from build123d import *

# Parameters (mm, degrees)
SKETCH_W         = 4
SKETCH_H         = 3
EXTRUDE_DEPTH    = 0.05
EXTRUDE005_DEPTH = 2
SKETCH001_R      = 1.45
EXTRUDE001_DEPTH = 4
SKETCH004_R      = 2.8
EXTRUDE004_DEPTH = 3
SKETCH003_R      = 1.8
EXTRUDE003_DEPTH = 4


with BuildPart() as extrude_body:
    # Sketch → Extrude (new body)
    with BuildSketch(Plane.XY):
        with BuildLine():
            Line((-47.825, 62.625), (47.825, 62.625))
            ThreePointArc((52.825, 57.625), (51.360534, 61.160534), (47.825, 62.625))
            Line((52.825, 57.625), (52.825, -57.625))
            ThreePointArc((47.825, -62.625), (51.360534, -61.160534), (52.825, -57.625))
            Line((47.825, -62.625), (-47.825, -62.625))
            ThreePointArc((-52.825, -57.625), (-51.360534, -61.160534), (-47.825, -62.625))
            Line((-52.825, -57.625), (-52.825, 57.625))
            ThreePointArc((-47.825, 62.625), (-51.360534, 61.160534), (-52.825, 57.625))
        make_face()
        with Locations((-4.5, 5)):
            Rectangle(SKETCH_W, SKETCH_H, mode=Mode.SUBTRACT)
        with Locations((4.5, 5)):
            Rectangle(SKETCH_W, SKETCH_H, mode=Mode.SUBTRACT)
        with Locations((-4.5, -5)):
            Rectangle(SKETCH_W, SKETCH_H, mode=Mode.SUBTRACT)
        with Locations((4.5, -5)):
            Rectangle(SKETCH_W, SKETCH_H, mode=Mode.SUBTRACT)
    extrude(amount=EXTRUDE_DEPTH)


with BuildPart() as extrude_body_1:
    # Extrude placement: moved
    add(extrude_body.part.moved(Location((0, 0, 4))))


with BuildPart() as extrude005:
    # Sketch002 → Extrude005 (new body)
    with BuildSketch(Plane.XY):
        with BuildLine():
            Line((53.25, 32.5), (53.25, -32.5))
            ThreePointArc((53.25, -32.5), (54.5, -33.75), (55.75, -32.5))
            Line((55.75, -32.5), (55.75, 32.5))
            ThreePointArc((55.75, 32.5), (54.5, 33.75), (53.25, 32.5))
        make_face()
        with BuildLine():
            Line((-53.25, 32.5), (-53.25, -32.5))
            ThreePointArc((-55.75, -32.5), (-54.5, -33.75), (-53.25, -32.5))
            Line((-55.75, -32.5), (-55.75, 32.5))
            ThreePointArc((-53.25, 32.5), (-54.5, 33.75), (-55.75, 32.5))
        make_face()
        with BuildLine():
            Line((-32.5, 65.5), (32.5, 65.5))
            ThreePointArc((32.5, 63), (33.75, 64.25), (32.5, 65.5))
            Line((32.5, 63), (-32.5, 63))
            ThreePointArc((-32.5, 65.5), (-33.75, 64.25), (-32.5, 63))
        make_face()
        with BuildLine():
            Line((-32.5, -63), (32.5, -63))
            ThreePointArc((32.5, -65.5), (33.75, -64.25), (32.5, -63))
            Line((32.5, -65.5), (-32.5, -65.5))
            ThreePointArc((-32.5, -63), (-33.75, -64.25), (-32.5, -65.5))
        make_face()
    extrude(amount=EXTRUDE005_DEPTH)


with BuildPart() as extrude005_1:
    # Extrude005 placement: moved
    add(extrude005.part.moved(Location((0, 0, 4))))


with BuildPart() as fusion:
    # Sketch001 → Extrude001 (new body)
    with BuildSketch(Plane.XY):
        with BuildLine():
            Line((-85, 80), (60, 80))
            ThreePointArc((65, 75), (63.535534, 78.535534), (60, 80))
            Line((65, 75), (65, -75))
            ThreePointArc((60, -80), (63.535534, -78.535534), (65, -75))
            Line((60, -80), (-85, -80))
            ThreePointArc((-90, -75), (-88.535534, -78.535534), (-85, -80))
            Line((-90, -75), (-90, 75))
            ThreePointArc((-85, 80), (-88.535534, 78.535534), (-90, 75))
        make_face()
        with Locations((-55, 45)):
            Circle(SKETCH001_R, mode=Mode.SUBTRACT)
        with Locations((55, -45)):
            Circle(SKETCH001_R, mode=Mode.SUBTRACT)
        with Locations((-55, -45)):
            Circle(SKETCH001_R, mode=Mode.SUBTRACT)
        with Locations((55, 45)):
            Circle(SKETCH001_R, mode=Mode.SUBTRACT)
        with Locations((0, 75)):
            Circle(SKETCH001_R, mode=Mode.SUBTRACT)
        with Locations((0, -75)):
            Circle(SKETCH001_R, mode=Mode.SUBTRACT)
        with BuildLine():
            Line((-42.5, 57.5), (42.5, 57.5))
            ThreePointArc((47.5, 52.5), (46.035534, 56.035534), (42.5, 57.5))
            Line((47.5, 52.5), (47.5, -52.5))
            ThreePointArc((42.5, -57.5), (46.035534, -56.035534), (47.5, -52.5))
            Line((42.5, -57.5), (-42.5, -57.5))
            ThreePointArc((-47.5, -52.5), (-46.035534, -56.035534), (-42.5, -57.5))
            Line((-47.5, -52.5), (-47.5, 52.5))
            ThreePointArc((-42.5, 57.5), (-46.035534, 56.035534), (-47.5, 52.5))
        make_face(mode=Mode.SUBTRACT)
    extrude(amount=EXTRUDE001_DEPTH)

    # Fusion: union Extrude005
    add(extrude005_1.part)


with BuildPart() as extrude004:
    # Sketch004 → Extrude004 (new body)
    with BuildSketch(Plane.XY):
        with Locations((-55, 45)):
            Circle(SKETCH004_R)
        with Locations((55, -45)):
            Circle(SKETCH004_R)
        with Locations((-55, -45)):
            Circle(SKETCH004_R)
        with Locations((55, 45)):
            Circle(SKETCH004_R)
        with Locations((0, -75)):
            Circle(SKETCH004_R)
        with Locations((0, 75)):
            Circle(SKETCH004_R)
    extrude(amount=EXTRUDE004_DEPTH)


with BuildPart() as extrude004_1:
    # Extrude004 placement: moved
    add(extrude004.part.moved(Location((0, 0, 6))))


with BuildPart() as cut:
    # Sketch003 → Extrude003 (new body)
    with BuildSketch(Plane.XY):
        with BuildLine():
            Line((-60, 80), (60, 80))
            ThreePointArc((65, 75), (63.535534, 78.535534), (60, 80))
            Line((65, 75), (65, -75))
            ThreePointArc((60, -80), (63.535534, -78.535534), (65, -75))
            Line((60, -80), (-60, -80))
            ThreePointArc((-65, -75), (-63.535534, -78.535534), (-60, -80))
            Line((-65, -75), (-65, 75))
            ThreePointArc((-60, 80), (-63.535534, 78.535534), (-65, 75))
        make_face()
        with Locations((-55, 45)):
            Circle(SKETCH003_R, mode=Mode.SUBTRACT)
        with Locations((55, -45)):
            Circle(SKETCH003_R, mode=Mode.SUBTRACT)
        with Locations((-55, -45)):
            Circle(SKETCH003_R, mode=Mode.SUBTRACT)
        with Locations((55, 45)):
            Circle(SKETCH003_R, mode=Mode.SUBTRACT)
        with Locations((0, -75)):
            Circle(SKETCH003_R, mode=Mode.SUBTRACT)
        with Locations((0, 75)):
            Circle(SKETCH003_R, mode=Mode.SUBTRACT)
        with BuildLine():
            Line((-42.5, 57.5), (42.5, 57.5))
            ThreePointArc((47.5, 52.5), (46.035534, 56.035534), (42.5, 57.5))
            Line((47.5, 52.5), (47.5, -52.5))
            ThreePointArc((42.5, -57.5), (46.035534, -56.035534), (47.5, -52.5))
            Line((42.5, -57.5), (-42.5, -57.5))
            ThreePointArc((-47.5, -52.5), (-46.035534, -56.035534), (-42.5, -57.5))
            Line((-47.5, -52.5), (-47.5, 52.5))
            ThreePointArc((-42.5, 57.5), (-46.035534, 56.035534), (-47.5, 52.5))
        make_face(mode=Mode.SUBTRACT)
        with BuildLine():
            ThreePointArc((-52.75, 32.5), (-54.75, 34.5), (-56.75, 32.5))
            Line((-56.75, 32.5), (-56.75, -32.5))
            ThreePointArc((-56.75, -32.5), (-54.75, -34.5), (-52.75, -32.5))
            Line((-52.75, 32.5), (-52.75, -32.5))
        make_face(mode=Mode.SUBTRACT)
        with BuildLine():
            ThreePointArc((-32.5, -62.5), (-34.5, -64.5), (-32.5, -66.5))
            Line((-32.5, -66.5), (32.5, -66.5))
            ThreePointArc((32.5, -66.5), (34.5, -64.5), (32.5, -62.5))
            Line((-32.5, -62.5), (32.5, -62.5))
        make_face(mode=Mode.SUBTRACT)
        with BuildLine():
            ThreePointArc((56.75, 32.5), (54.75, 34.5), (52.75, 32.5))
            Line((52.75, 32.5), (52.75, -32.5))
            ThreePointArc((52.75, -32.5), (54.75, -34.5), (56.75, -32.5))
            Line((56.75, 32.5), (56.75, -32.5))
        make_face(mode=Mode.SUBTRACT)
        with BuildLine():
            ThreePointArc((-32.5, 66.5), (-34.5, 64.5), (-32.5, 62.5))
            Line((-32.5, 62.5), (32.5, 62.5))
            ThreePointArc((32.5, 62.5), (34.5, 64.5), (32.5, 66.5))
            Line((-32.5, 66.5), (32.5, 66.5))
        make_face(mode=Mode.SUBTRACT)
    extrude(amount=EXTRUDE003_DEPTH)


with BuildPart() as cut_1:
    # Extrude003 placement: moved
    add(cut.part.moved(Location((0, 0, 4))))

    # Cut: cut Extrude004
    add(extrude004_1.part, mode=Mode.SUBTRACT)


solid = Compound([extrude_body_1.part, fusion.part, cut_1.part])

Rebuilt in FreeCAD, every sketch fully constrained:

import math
import FreeCAD as App
import Part
import Sketcher

V = App.Vector
Q = App.Units.Quantity


def add_polygon(sketch, points):
    """Adds a closed chain of lines whose ends are joined by coincident constraints."""
    first, n = sketch.GeometryCount, len(points)
    for a, b in zip(points, points[1:] + points[:1]):
        sketch.addGeometry(Part.LineSegment(App.Vector(*a, 0), App.Vector(*b, 0)), False)
    for i in range(n):
        sketch.addConstraint(Sketcher.Constraint("Coincident", first + i, 2, first + (i + 1) % n, 1))

doc = App.newDocument("Part")
body = doc.addObject("PartDesign::Body", "Body")

# Sketch on XY plane
sketch1 = body.newObject("Sketcher::SketchObject", "Sketch")
sketch1.AttachmentSupport = (doc.getObject("XY_Plane"), [""])
sketch1.MapMode = "FlatFace"
sketch1.addGeometry(Part.LineSegment(V(47.8, 62.6, 0), V(-47.8, 62.6, 0)), False)  # 0
sketch1.addGeometry(Part.ArcOfCircle(Part.Circle(V(-47.8, 57.6, 0), V(0, 0, 1), 5), math.radians(90), math.radians(180)), False)  # 1
sketch1.addGeometry(Part.LineSegment(V(-52.8, 57.6, 0), V(-52.8, -57.6, 0)), False)  # 2
sketch1.addGeometry(Part.ArcOfCircle(Part.Circle(V(-47.8, -57.6, 0), V(0, 0, 1), 5), math.radians(180), math.radians(270)), False)  # 3
sketch1.addGeometry(Part.LineSegment(V(-47.8, -62.6, 0), V(47.8, -62.6, 0)), False)  # 4
sketch1.addGeometry(Part.ArcOfCircle(Part.Circle(V(47.8, -57.6, 0), V(0, 0, 1), 5), math.radians(-90), math.radians(0)), False)  # 5
sketch1.addGeometry(Part.LineSegment(V(52.8, -57.6, 0), V(52.8, 57.6, 0)), False)  # 6
sketch1.addGeometry(Part.ArcOfCircle(Part.Circle(V(47.8, 57.6, 0), V(0, 0, 1), 5), math.radians(0), math.radians(90)), False)  # 7
add_polygon(sketch1, [(2.5, -6.5), (2.5, -3.5), (6.5, -3.5), (6.5, -6.5)])  # lines 8-11
add_polygon(sketch1, [(-6.5, -6.5), (-6.5, -3.5), (-2.5, -3.5), (-2.5, -6.5)])  # lines 12-15
add_polygon(sketch1, [(2.5, 3.5), (2.5, 6.5), (6.5, 6.5), (6.5, 3.5)])  # lines 16-19
add_polygon(sketch1, [(-6.5, 3.5), (-6.5, 6.5), (-2.5, 6.5), (-2.5, 3.5)])  # lines 20-23
sketch1.addConstraint([
    Sketcher.Constraint("Tangent", 0, 2, 1, 1),
    Sketcher.Constraint("Tangent", 1, 2, 2, 1),
    Sketcher.Constraint("Tangent", 2, 2, 3, 1),
    Sketcher.Constraint("Tangent", 3, 2, 4, 1),
    Sketcher.Constraint("Tangent", 4, 2, 5, 1),
    Sketcher.Constraint("Tangent", 5, 2, 6, 1),
    Sketcher.Constraint("Tangent", 6, 2, 7, 1),
    Sketcher.Constraint("Tangent", 7, 2, 0, 1),
    Sketcher.Constraint("Horizontal", 0),
    Sketcher.Constraint("Vertical", 2),
    Sketcher.Constraint("Horizontal", 4),
    Sketcher.Constraint("Vertical", 6),
    Sketcher.Constraint("Vertical", 8),
    Sketcher.Constraint("Horizontal", 9),
    Sketcher.Constraint("Vertical", 10),
    Sketcher.Constraint("Horizontal", 11),
    Sketcher.Constraint("Vertical", 12),
    Sketcher.Constraint("Horizontal", 13),
    Sketcher.Constraint("Vertical", 14),
    Sketcher.Constraint("Horizontal", 15),
    Sketcher.Constraint("Vertical", 16),
    Sketcher.Constraint("Horizontal", 17),
    Sketcher.Constraint("Vertical", 18),
    Sketcher.Constraint("Horizontal", 19),
    Sketcher.Constraint("Vertical", 20),
    Sketcher.Constraint("Horizontal", 21),
    Sketcher.Constraint("Vertical", 22),
    Sketcher.Constraint("Horizontal", 23),
    Sketcher.Constraint("Equal", 1, 3),
    Sketcher.Constraint("Equal", 3, 5),
    Sketcher.Constraint("Equal", 5, 7),
    Sketcher.Constraint("Symmetric", 1, 3, 5, 3, -1, 1),
    Sketcher.Constraint("Symmetric", 14, 2, 16, 2, -1, 1),
    Sketcher.Constraint("Symmetric", 12, 2, 18, 2, -1, 1),
    Sketcher.Constraint("Symmetric", 10, 2, 20, 2, -1, 1),
    Sketcher.Constraint("Symmetric", 8, 2, 22, 2, -1, 1),
    Sketcher.Constraint("Symmetric", 9, 2, 12, 2, -2),
    Sketcher.Constraint("Symmetric", 11, 2, 14, 2, -2),
    Sketcher.Constraint("Radius", 1, Q("5 mm")),
    Sketcher.Constraint("DistanceX", 9, 1, 9, 2, Q("4 mm")),
    Sketcher.Constraint("DistanceY", 8, 1, 8, 2, Q("3 mm")),
    Sketcher.Constraint("DistanceX", 12, 2, 8, 2, Q("9 mm")),
    Sketcher.Constraint("DistanceY", 8, 2, 16, 2, Q("10 mm")),
    Sketcher.Constraint("DistanceX", 0, 2, 0, 1, Q("95.65 mm")),
    Sketcher.Constraint("DistanceY", 2, 2, 2, 1, Q("115.25 mm")),
])
pad1 = body.newObject("PartDesign::Pad", "Pad")
pad1.Profile = sketch1
pad1.Length = 0.05
body2 = doc.addObject("PartDesign::Body", "Body001")
doc.recompute()

body.Placement = App.Placement(V(0, 0, 4), App.Rotation(V(0, 0, 1), 0))
boolean = body2.newObject("PartDesign::Boolean", "Boolean")
boolean.Type = "Fuse"
boolean.addObjects([body])
body3 = doc.addObject("PartDesign::Body", "Body002")
body3.AllowCompound = True

# Sketch on XY plane
sketch2 = body3.newObject("Sketcher::SketchObject", "Sketch001")
sketch2.AttachmentSupport = (doc.getObject("XY_Plane002"), [""])
sketch2.MapMode = "FlatFace"
sketch2.addGeometry([
    Part.LineSegment(V(53.2, 32.5, 0), V(53.2, -32.5, 0)),  # 0
    Part.ArcOfCircle(Part.Circle(V(54.5, -32.5, 0), V(0, 0, 1), 1.2), math.radians(180), math.radians(360)),  # 1
    Part.LineSegment(V(55.8, -32.5, 0), V(55.8, 32.5, 0)),  # 2
    Part.ArcOfCircle(Part.Circle(V(54.5, 32.5, 0), V(0, 0, 1), 1.2), math.radians(0), math.radians(180)),  # 3
    Part.LineSegment(V(-53.2, -32.5, 0), V(-53.2, 32.5, 0)),  # 4
    Part.ArcOfCircle(Part.Circle(V(-54.5, 32.5, 0), V(0, 0, 1), 1.2), math.radians(0), math.radians(180)),  # 5
    Part.LineSegment(V(-55.8, 32.5, 0), V(-55.8, -32.5, 0)),  # 6
    Part.ArcOfCircle(Part.Circle(V(-54.5, -32.5, 0), V(0, 0, 1), 1.2), math.radians(180), math.radians(360)),  # 7
    Part.LineSegment(V(32.5, 65.5, 0), V(-32.5, 65.5, 0)),  # 8
    Part.ArcOfCircle(Part.Circle(V(-32.5, 64.2, 0), V(0, 0, 1), 1.2), math.radians(90), math.radians(270)),  # 9
    Part.LineSegment(V(-32.5, 63, 0), V(32.5, 63, 0)),  # 10
    Part.ArcOfCircle(Part.Circle(V(32.5, 64.2, 0), V(0, 0, 1), 1.2), math.radians(-90), math.radians(90)),  # 11
    Part.LineSegment(V(32.5, -63, 0), V(-32.5, -63, 0)),  # 12
    Part.ArcOfCircle(Part.Circle(V(-32.5, -64.2, 0), V(0, 0, 1), 1.2), math.radians(90), math.radians(270)),  # 13
    Part.LineSegment(V(-32.5, -65.5, 0), V(32.5, -65.5, 0)),  # 14
    Part.ArcOfCircle(Part.Circle(V(32.5, -64.2, 0), V(0, 0, 1), 1.2), math.radians(-90), math.radians(90)),  # 15
], False)
sketch2.addConstraint([
    Sketcher.Constraint("Tangent", 0, 2, 1, 1),
    Sketcher.Constraint("Tangent", 1, 2, 2, 1),
    Sketcher.Constraint("Tangent", 2, 2, 3, 1),
    Sketcher.Constraint("Tangent", 3, 2, 0, 1),
    Sketcher.Constraint("Tangent", 4, 2, 5, 1),
    Sketcher.Constraint("Tangent", 5, 2, 6, 1),
    Sketcher.Constraint("Tangent", 6, 2, 7, 1),
    Sketcher.Constraint("Tangent", 7, 2, 4, 1),
    Sketcher.Constraint("Tangent", 8, 2, 9, 1),
    Sketcher.Constraint("Tangent", 9, 2, 10, 1),
    Sketcher.Constraint("Tangent", 10, 2, 11, 1),
    Sketcher.Constraint("Tangent", 11, 2, 8, 1),
    Sketcher.Constraint("Tangent", 12, 2, 13, 1),
    Sketcher.Constraint("Tangent", 13, 2, 14, 1),
    Sketcher.Constraint("Tangent", 14, 2, 15, 1),
    Sketcher.Constraint("Tangent", 15, 2, 12, 1),
    Sketcher.Constraint("Vertical", 0),
    Sketcher.Constraint("Vertical", 2),
    Sketcher.Constraint("Vertical", 4),
    Sketcher.Constraint("Vertical", 6),
    Sketcher.Constraint("Horizontal", 8),
    Sketcher.Constraint("Horizontal", 10),
    Sketcher.Constraint("Horizontal", 12),
    Sketcher.Constraint("Horizontal", 14),
    Sketcher.Constraint("Equal", 3, 5),
    Sketcher.Constraint("Equal", 7, 9),
    Sketcher.Constraint("Equal", 11, 13),
    Sketcher.Constraint("Symmetric", 1, 3, 5, 3, -1, 1),
    Sketcher.Constraint("Symmetric", 11, 3, 13, 3, -1, 1),
    Sketcher.Constraint("Horizontal", 3, 3, 5, 3),
    Sketcher.Constraint("Horizontal", 1, 3, 7, 3),
    Sketcher.Constraint("Vertical", 9, 3, 13, 3),
    Sketcher.Constraint("Vertical", 11, 3, 15, 3),
    Sketcher.Constraint("Equal", 14, 0),
    Sketcher.Constraint("DistanceX", 8, 2, 8, 1, Q("65 mm")),
    Sketcher.Constraint("Radius", 1, Q("1.25 mm")),
    Sketcher.Constraint("DistanceY", -1, 1, 9, 2, Q("63 mm")),
    Sketcher.Constraint("DistanceX", 5, 3, 3, 3, Q("109 mm")),
])
pad2 = body3.newObject("PartDesign::Pad", "Pad001")
pad2.Profile = sketch2
pad2.Length = 2
body4 = doc.addObject("PartDesign::Body", "Body003")
body4.AllowCompound = True
doc.recompute()

body3.Placement = App.Placement(V(0, 0, 4), App.Rotation(V(0, 0, 1), 0))
boolean2 = body4.newObject("PartDesign::Boolean", "Boolean001")
boolean2.Type = "Fuse"
boolean2.addObjects([body3])
body5 = doc.addObject("PartDesign::Body", "Body004")

# Sketch on XY plane
sketch3 = body5.newObject("Sketcher::SketchObject", "Sketch002")
sketch3.AttachmentSupport = (doc.getObject("XY_Plane004"), [""])
sketch3.MapMode = "FlatFace"
sketch3.addGeometry([
    Part.LineSegment(V(60, 80, 0), V(-85, 80, 0)),  # 0
    Part.ArcOfCircle(Part.Circle(V(-85, 75, 0), V(0, 0, 1), 5), math.radians(90), math.radians(180)),  # 1
    Part.LineSegment(V(-90, 75, 0), V(-90, -75, 0)),  # 2
    Part.ArcOfCircle(Part.Circle(V(-85, -75, 0), V(0, 0, 1), 5), math.radians(180), math.radians(270)),  # 3
    Part.LineSegment(V(-85, -80, 0), V(60, -80, 0)),  # 4
    Part.ArcOfCircle(Part.Circle(V(60, -75, 0), V(0, 0, 1), 5), math.radians(-90), math.radians(0)),  # 5
    Part.LineSegment(V(65, -75, 0), V(65, 75, 0)),  # 6
    Part.ArcOfCircle(Part.Circle(V(60, 75, 0), V(0, 0, 1), 5), math.radians(0), math.radians(90)),  # 7
    Part.Circle(V(55, -45, 0), V(0, 0, 1), 1.4),  # 8
    Part.Circle(V(0, -75, 0), V(0, 0, 1), 1.4),  # 9
    Part.Circle(V(-55, -45, 0), V(0, 0, 1), 1.4),  # 10
    Part.LineSegment(V(-42.5, 57.5, 0), V(42.5, 57.5, 0)),  # 11
    Part.ArcOfCircle(Part.Circle(V(42.5, 52.5, 0), V(0, 0, 1), 5), math.radians(0), math.radians(90)),  # 12
    Part.LineSegment(V(47.5, 52.5, 0), V(47.5, -52.5, 0)),  # 13
    Part.ArcOfCircle(Part.Circle(V(42.5, -52.5, 0), V(0, 0, 1), 5), math.radians(-90), math.radians(0)),  # 14
    Part.LineSegment(V(42.5, -57.5, 0), V(-42.5, -57.5, 0)),  # 15
    Part.ArcOfCircle(Part.Circle(V(-42.5, -52.5, 0), V(0, 0, 1), 5), math.radians(180), math.radians(270)),  # 16
    Part.LineSegment(V(-47.5, -52.5, 0), V(-47.5, 52.5, 0)),  # 17
    Part.ArcOfCircle(Part.Circle(V(-42.5, 52.5, 0), V(0, 0, 1), 5), math.radians(90), math.radians(180)),  # 18
    Part.Circle(V(55, 45, 0), V(0, 0, 1), 1.4),  # 19
    Part.Circle(V(0, 75, 0), V(0, 0, 1), 1.4),  # 20
    Part.Circle(V(-55, 45, 0), V(0, 0, 1), 1.4),  # 21
], False)
sketch3.addConstraint([
    Sketcher.Constraint("Tangent", 0, 2, 1, 1),
    Sketcher.Constraint("Tangent", 1, 2, 2, 1),
    Sketcher.Constraint("Tangent", 2, 2, 3, 1),
    Sketcher.Constraint("Tangent", 3, 2, 4, 1),
    Sketcher.Constraint("Tangent", 4, 2, 5, 1),
    Sketcher.Constraint("Tangent", 5, 2, 6, 1),
    Sketcher.Constraint("Tangent", 6, 2, 7, 1),
    Sketcher.Constraint("Tangent", 7, 2, 0, 1),
    Sketcher.Constraint("Tangent", 11, 2, 12, 2),
    Sketcher.Constraint("Tangent", 12, 1, 13, 1),
    Sketcher.Constraint("Tangent", 13, 2, 14, 2),
    Sketcher.Constraint("Tangent", 14, 1, 15, 1),
    Sketcher.Constraint("Tangent", 15, 2, 16, 2),
    Sketcher.Constraint("Tangent", 16, 1, 17, 1),
    Sketcher.Constraint("Tangent", 17, 2, 18, 2),
    Sketcher.Constraint("Tangent", 18, 1, 11, 1),
    Sketcher.Constraint("Horizontal", 0),
    Sketcher.Constraint("Vertical", 2),
    Sketcher.Constraint("Horizontal", 4),
    Sketcher.Constraint("Vertical", 6),
    Sketcher.Constraint("Horizontal", 11),
    Sketcher.Constraint("Vertical", 13),
    Sketcher.Constraint("Horizontal", 15),
    Sketcher.Constraint("Vertical", 17),
    Sketcher.Constraint("Equal", 1, 3),
    Sketcher.Constraint("Equal", 3, 5),
    Sketcher.Constraint("Equal", 5, 7),
    Sketcher.Constraint("Equal", 8, 9),
    Sketcher.Constraint("Equal", 9, 10),
    Sketcher.Constraint("Equal", 7, 12),
    Sketcher.Constraint("Equal", 12, 14),
    Sketcher.Constraint("Equal", 14, 16),
    Sketcher.Constraint("Equal", 16, 18),
    Sketcher.Constraint("Equal", 10, 19),
    Sketcher.Constraint("Equal", 19, 20),
    Sketcher.Constraint("Equal", 20, 21),
    Sketcher.Constraint("Symmetric", 12, 3, 16, 3, -1, 1),
    Sketcher.Constraint("Symmetric", 10, 3, 19, 3, -1, 1),
    Sketcher.Constraint("Symmetric", 9, 3, 20, 3, -1, 1),
    Sketcher.Constraint("Symmetric", 8, 3, 21, 3, -1, 1),
    Sketcher.Constraint("Symmetric", 8, 3, 10, 3, -2),
    Sketcher.Constraint("PointOnObject", 9, 3, -2),
    Sketcher.Constraint("Horizontal", 5, 3, 9, 3),
    Sketcher.Constraint("Horizontal", 7, 3, 20, 3),
    Sketcher.Constraint("Radius", 1, Q("5 mm")),
    Sketcher.Constraint("Diameter", 8, Q("2.9 mm")),
    Sketcher.Constraint("DistanceX", 0, 2, 0, 1, Q("145 mm")),
    Sketcher.Constraint("DistanceX", 11, 1, 11, 2, Q("85 mm")),
    Sketcher.Constraint("DistanceY", 2, 2, 2, 1, Q("150 mm")),
    Sketcher.Constraint("DistanceY", 13, 2, 13, 1, Q("105 mm")),
    Sketcher.Constraint("DistanceX", 1, 3, -1, 1, Q("85 mm")),
    Sketcher.Constraint("DistanceX", -1, 1, 8, 3, Q("55 mm")),
    Sketcher.Constraint("DistanceY", 8, 3, -1, 1, Q("45 mm")),
])
pad3 = body5.newObject("PartDesign::Pad", "Pad002")
pad3.Profile = sketch3
pad3.Length = 4
doc.recompute()

boolean3 = body5.newObject("PartDesign::Boolean", "Boolean002")
boolean3.Type = "Fuse"
boolean3.addObjects([body4])
body6 = doc.addObject("PartDesign::Body", "Body005")
body6.AllowCompound = True

# Sketch on XY plane
sketch4 = body6.newObject("Sketcher::SketchObject", "Sketch003")
sketch4.AttachmentSupport = (doc.getObject("XY_Plane005"), [""])
sketch4.MapMode = "FlatFace"
sketch4.addGeometry([
    Part.Circle(V(-55, 45, 0), V(0, 0, 1), 2.8),  # 0
    Part.Circle(V(55, -45, 0), V(0, 0, 1), 2.8),  # 1
    Part.Circle(V(-55, -45, 0), V(0, 0, 1), 2.8),  # 2
    Part.Circle(V(55, 45, 0), V(0, 0, 1), 2.8),  # 3
    Part.Circle(V(0, -75, 0), V(0, 0, 1), 2.8),  # 4
    Part.Circle(V(0, 75, 0), V(0, 0, 1), 2.8),  # 5
], False)
sketch4.addConstraint([
    Sketcher.Constraint("Equal", 0, 1),
    Sketcher.Constraint("Equal", 1, 2),
    Sketcher.Constraint("Equal", 2, 3),
    Sketcher.Constraint("Equal", 3, 4),
    Sketcher.Constraint("Equal", 4, 5),
    Sketcher.Constraint("Symmetric", 0, 3, 1, 3, -1, 1),
    Sketcher.Constraint("Symmetric", 2, 3, 3, 3, -1, 1),
    Sketcher.Constraint("Symmetric", 4, 3, 5, 3, -1, 1),
    Sketcher.Constraint("Symmetric", 1, 3, 2, 3, -2),
    Sketcher.Constraint("PointOnObject", 4, 3, -2),
    Sketcher.Constraint("Diameter", 0, Q("5.6 mm")),
    Sketcher.Constraint("DistanceX", 0, 3, -1, 1, Q("55 mm")),
    Sketcher.Constraint("DistanceY", -1, 1, 0, 3, Q("45 mm")),
    Sketcher.Constraint("DistanceY", 4, 3, -1, 1, Q("75 mm")),
])
pad4 = body6.newObject("PartDesign::Pad", "Pad003")
pad4.Profile = sketch4
pad4.Length = 3
body7 = doc.addObject("PartDesign::Body", "Body006")
body7.AllowCompound = True
doc.recompute()

body6.Placement = App.Placement(V(0, 0, 6), App.Rotation(V(0, 0, 1), 0))
boolean4 = body7.newObject("PartDesign::Boolean", "Boolean003")
boolean4.Type = "Fuse"
boolean4.addObjects([body6])
body8 = doc.addObject("PartDesign::Body", "Body007")

# Sketch on XY plane
sketch5 = body8.newObject("Sketcher::SketchObject", "Sketch004")
sketch5.AttachmentSupport = (doc.getObject("XY_Plane007"), [""])
sketch5.MapMode = "FlatFace"
sketch5.addGeometry([
    Part.LineSegment(V(60, 80, 0), V(-60, 80, 0)),  # 0
    Part.ArcOfCircle(Part.Circle(V(-60, 75, 0), V(0, 0, 1), 5), math.radians(90), math.radians(180)),  # 1
    Part.LineSegment(V(-65, 75, 0), V(-65, -75, 0)),  # 2
    Part.ArcOfCircle(Part.Circle(V(-60, -75, 0), V(0, 0, 1), 5), math.radians(180), math.radians(270)),  # 3
    Part.LineSegment(V(-60, -80, 0), V(60, -80, 0)),  # 4
    Part.ArcOfCircle(Part.Circle(V(60, -75, 0), V(0, 0, 1), 5), math.radians(-90), math.radians(0)),  # 5
    Part.LineSegment(V(65, -75, 0), V(65, 75, 0)),  # 6
    Part.ArcOfCircle(Part.Circle(V(60, 75, 0), V(0, 0, 1), 5), math.radians(0), math.radians(90)),  # 7
    Part.Circle(V(55, -45, 0), V(0, 0, 1), 1.8),  # 8
    Part.Circle(V(0, -75, 0), V(0, 0, 1), 1.8),  # 9
    Part.LineSegment(V(-32.5, -62.5, 0), V(32.5, -62.5, 0)),  # 10
    Part.ArcOfCircle(Part.Circle(V(32.5, -64.5, 0), V(0, 0, 1), 2), math.radians(-90), math.radians(90)),  # 11
    Part.LineSegment(V(32.5, -66.5, 0), V(-32.5, -66.5, 0)),  # 12
    Part.ArcOfCircle(Part.Circle(V(-32.5, -64.5, 0), V(0, 0, 1), 2), math.radians(90), math.radians(270)),  # 13
    Part.Circle(V(-55, -45, 0), V(0, 0, 1), 1.8),  # 14
    Part.LineSegment(V(56.8, 32.5, 0), V(56.8, -32.5, 0)),  # 15
    Part.ArcOfCircle(Part.Circle(V(54.8, -32.5, 0), V(0, 0, 1), 2), math.radians(180), math.radians(360)),  # 16
    Part.LineSegment(V(52.8, -32.5, 0), V(52.8, 32.5, 0)),  # 17
    Part.ArcOfCircle(Part.Circle(V(54.8, 32.5, 0), V(0, 0, 1), 2), math.radians(0), math.radians(180)),  # 18
    Part.Circle(V(55, 45, 0), V(0, 0, 1), 1.8),  # 19
    Part.LineSegment(V(-42.5, 57.5, 0), V(42.5, 57.5, 0)),  # 20
    Part.ArcOfCircle(Part.Circle(V(42.5, 52.5, 0), V(0, 0, 1), 5), math.radians(0), math.radians(90)),  # 21
    Part.LineSegment(V(47.5, 52.5, 0), V(47.5, -52.5, 0)),  # 22
    Part.ArcOfCircle(Part.Circle(V(42.5, -52.5, 0), V(0, 0, 1), 5), math.radians(-90), math.radians(0)),  # 23
    Part.LineSegment(V(42.5, -57.5, 0), V(-42.5, -57.5, 0)),  # 24
    Part.ArcOfCircle(Part.Circle(V(-42.5, -52.5, 0), V(0, 0, 1), 5), math.radians(180), math.radians(270)),  # 25
    Part.LineSegment(V(-47.5, -52.5, 0), V(-47.5, 52.5, 0)),  # 26
    Part.ArcOfCircle(Part.Circle(V(-42.5, 52.5, 0), V(0, 0, 1), 5), math.radians(90), math.radians(180)),  # 27
    Part.LineSegment(V(-52.8, 32.5, 0), V(-52.8, -32.5, 0)),  # 28
    Part.ArcOfCircle(Part.Circle(V(-54.8, -32.5, 0), V(0, 0, 1), 2), math.radians(180), math.radians(360)),  # 29
    Part.LineSegment(V(-56.8, -32.5, 0), V(-56.8, 32.5, 0)),  # 30
    Part.ArcOfCircle(Part.Circle(V(-54.8, 32.5, 0), V(0, 0, 1), 2), math.radians(0), math.radians(180)),  # 31
    Part.LineSegment(V(-32.5, 66.5, 0), V(32.5, 66.5, 0)),  # 32
    Part.ArcOfCircle(Part.Circle(V(32.5, 64.5, 0), V(0, 0, 1), 2), math.radians(-90), math.radians(90)),  # 33
    Part.LineSegment(V(32.5, 62.5, 0), V(-32.5, 62.5, 0)),  # 34
    Part.ArcOfCircle(Part.Circle(V(-32.5, 64.5, 0), V(0, 0, 1), 2), math.radians(90), math.radians(270)),  # 35
    Part.Circle(V(0, 75, 0), V(0, 0, 1), 1.8),  # 36
    Part.Circle(V(-55, 45, 0), V(0, 0, 1), 1.8),  # 37
], False)
sketch5.addConstraint([
    Sketcher.Constraint("Tangent", 0, 2, 1, 1),
    Sketcher.Constraint("Tangent", 1, 2, 2, 1),
    Sketcher.Constraint("Tangent", 2, 2, 3, 1),
    Sketcher.Constraint("Tangent", 3, 2, 4, 1),
    Sketcher.Constraint("Tangent", 4, 2, 5, 1),
    Sketcher.Constraint("Tangent", 5, 2, 6, 1),
    Sketcher.Constraint("Tangent", 6, 2, 7, 1),
    Sketcher.Constraint("Tangent", 7, 2, 0, 1),
    Sketcher.Constraint("Tangent", 10, 2, 11, 2),
    Sketcher.Constraint("Tangent", 11, 1, 12, 1),
    Sketcher.Constraint("Tangent", 12, 2, 13, 2),
    Sketcher.Constraint("Tangent", 13, 1, 10, 1),
    Sketcher.Constraint("Tangent", 15, 2, 16, 2),
    Sketcher.Constraint("Tangent", 16, 1, 17, 1),
    Sketcher.Constraint("Tangent", 17, 2, 18, 2),
    Sketcher.Constraint("Tangent", 18, 1, 15, 1),
    Sketcher.Constraint("Tangent", 20, 2, 21, 2),
    Sketcher.Constraint("Tangent", 21, 1, 22, 1),
    Sketcher.Constraint("Tangent", 22, 2, 23, 2),
    Sketcher.Constraint("Tangent", 23, 1, 24, 1),
    Sketcher.Constraint("Tangent", 24, 2, 25, 2),
    Sketcher.Constraint("Tangent", 25, 1, 26, 1),
    Sketcher.Constraint("Tangent", 26, 2, 27, 2),
    Sketcher.Constraint("Tangent", 27, 1, 20, 1),
    Sketcher.Constraint("Tangent", 28, 2, 29, 2),
    Sketcher.Constraint("Tangent", 29, 1, 30, 1),
    Sketcher.Constraint("Tangent", 30, 2, 31, 2),
    Sketcher.Constraint("Tangent", 31, 1, 28, 1),
    Sketcher.Constraint("Tangent", 32, 2, 33, 2),
    Sketcher.Constraint("Tangent", 33, 1, 34, 1),
    Sketcher.Constraint("Tangent", 34, 2, 35, 2),
    Sketcher.Constraint("Tangent", 35, 1, 32, 1),
    Sketcher.Constraint("Horizontal", 0),
    Sketcher.Constraint("Vertical", 2),
    Sketcher.Constraint("Horizontal", 4),
    Sketcher.Constraint("Vertical", 6),
    Sketcher.Constraint("Horizontal", 10),
    Sketcher.Constraint("Horizontal", 12),
    Sketcher.Constraint("Vertical", 15),
    Sketcher.Constraint("Vertical", 17),
    Sketcher.Constraint("Horizontal", 20),
    Sketcher.Constraint("Vertical", 22),
    Sketcher.Constraint("Horizontal", 24),
    Sketcher.Constraint("Vertical", 26),
    Sketcher.Constraint("Vertical", 28),
    Sketcher.Constraint("Vertical", 30),
    Sketcher.Constraint("Horizontal", 32),
    Sketcher.Constraint("Horizontal", 34),
    Sketcher.Constraint("Equal", 1, 3),
    Sketcher.Constraint("Equal", 3, 5),
    Sketcher.Constraint("Equal", 5, 7),
    Sketcher.Constraint("Equal", 8, 9),
    Sketcher.Constraint("Equal", 9, 14),
    Sketcher.Constraint("Equal", 13, 16),
    Sketcher.Constraint("Equal", 14, 19),
    Sketcher.Constraint("Equal", 7, 21),
    Sketcher.Constraint("Equal", 21, 23),
    Sketcher.Constraint("Equal", 23, 25),
    Sketcher.Constraint("Equal", 25, 27),
    Sketcher.Constraint("Equal", 18, 29),
    Sketcher.Constraint("Equal", 31, 33),
    Sketcher.Constraint("Equal", 19, 36),
    Sketcher.Constraint("Equal", 36, 37),
    Sketcher.Constraint("Symmetric", 1, 3, 5, 3, -1, 1),
    Sketcher.Constraint("Symmetric", 14, 3, 19, 3, -1, 1),
    Sketcher.Constraint("Symmetric", 21, 3, 25, 3, -1, 1),
    Sketcher.Constraint("Symmetric", 18, 3, 29, 3, -1, 1),
    Sketcher.Constraint("Symmetric", 13, 3, 33, 3, -1, 1),
    Sketcher.Constraint("Symmetric", 9, 3, 36, 3, -1, 1),
    Sketcher.Constraint("Symmetric", 8, 3, 37, 3, -1, 1),
    Sketcher.Constraint("Symmetric", 8, 3, 14, 3, -2),
    Sketcher.Constraint("PointOnObject", 9, 3, -2),
    Sketcher.Constraint("Horizontal", 5, 3, 9, 3),
    Sketcher.Constraint("Horizontal", 16, 3, 29, 3),
    Sketcher.Constraint("Horizontal", 18, 3, 31, 3),
    Sketcher.Constraint("Vertical", 11, 3, 33, 3),
    Sketcher.Constraint("Vertical", 13, 3, 35, 3),
    Sketcher.Constraint("Equal", 34, 15),
    Sketcher.Constraint("Radius", 1, Q("5 mm")),
    Sketcher.Constraint("Radius", 11, Q("2 mm")),
    Sketcher.Constraint("Diameter", 8, Q("3.6 mm")),
    Sketcher.Constraint("DistanceX", 0, 2, 0, 1, Q("120 mm")),
    Sketcher.Constraint("DistanceX", 10, 1, 10, 2, Q("65 mm")),
    Sketcher.Constraint("DistanceX", 20, 1, 20, 2, Q("85 mm")),
    Sketcher.Constraint("DistanceY", 2, 2, 2, 1, Q("150 mm")),
    Sketcher.Constraint("DistanceY", 22, 2, 22, 1, Q("105 mm")),
    Sketcher.Constraint("DistanceX", -1, 1, 8, 3, Q("55 mm")),
    Sketcher.Constraint("DistanceY", 8, 3, -1, 1, Q("45 mm")),
    Sketcher.Constraint("DistanceY", 11, 3, 16, 3, Q("32 mm")),
    Sketcher.Constraint("DistanceX", -1, 1, 16, 3, Q("54.75 mm")),
])
pad5 = body8.newObject("PartDesign::Pad", "Pad004")
pad5.Profile = sketch5
pad5.Length = 4
body9 = doc.addObject("PartDesign::Body", "Body008")
doc.recompute()

body8.Placement = App.Placement(V(0, 0, 4), App.Rotation(V(0, 0, 1), 0))
boolean5 = body9.newObject("PartDesign::Boolean", "Boolean004")
boolean5.Type = "Fuse"
boolean5.addObjects([body8])
doc.recompute()

boolean6 = body9.newObject("PartDesign::Boolean", "Boolean005")
boolean6.Type = "Cut"
boolean6.addObjects([body7])

doc.recompute()
